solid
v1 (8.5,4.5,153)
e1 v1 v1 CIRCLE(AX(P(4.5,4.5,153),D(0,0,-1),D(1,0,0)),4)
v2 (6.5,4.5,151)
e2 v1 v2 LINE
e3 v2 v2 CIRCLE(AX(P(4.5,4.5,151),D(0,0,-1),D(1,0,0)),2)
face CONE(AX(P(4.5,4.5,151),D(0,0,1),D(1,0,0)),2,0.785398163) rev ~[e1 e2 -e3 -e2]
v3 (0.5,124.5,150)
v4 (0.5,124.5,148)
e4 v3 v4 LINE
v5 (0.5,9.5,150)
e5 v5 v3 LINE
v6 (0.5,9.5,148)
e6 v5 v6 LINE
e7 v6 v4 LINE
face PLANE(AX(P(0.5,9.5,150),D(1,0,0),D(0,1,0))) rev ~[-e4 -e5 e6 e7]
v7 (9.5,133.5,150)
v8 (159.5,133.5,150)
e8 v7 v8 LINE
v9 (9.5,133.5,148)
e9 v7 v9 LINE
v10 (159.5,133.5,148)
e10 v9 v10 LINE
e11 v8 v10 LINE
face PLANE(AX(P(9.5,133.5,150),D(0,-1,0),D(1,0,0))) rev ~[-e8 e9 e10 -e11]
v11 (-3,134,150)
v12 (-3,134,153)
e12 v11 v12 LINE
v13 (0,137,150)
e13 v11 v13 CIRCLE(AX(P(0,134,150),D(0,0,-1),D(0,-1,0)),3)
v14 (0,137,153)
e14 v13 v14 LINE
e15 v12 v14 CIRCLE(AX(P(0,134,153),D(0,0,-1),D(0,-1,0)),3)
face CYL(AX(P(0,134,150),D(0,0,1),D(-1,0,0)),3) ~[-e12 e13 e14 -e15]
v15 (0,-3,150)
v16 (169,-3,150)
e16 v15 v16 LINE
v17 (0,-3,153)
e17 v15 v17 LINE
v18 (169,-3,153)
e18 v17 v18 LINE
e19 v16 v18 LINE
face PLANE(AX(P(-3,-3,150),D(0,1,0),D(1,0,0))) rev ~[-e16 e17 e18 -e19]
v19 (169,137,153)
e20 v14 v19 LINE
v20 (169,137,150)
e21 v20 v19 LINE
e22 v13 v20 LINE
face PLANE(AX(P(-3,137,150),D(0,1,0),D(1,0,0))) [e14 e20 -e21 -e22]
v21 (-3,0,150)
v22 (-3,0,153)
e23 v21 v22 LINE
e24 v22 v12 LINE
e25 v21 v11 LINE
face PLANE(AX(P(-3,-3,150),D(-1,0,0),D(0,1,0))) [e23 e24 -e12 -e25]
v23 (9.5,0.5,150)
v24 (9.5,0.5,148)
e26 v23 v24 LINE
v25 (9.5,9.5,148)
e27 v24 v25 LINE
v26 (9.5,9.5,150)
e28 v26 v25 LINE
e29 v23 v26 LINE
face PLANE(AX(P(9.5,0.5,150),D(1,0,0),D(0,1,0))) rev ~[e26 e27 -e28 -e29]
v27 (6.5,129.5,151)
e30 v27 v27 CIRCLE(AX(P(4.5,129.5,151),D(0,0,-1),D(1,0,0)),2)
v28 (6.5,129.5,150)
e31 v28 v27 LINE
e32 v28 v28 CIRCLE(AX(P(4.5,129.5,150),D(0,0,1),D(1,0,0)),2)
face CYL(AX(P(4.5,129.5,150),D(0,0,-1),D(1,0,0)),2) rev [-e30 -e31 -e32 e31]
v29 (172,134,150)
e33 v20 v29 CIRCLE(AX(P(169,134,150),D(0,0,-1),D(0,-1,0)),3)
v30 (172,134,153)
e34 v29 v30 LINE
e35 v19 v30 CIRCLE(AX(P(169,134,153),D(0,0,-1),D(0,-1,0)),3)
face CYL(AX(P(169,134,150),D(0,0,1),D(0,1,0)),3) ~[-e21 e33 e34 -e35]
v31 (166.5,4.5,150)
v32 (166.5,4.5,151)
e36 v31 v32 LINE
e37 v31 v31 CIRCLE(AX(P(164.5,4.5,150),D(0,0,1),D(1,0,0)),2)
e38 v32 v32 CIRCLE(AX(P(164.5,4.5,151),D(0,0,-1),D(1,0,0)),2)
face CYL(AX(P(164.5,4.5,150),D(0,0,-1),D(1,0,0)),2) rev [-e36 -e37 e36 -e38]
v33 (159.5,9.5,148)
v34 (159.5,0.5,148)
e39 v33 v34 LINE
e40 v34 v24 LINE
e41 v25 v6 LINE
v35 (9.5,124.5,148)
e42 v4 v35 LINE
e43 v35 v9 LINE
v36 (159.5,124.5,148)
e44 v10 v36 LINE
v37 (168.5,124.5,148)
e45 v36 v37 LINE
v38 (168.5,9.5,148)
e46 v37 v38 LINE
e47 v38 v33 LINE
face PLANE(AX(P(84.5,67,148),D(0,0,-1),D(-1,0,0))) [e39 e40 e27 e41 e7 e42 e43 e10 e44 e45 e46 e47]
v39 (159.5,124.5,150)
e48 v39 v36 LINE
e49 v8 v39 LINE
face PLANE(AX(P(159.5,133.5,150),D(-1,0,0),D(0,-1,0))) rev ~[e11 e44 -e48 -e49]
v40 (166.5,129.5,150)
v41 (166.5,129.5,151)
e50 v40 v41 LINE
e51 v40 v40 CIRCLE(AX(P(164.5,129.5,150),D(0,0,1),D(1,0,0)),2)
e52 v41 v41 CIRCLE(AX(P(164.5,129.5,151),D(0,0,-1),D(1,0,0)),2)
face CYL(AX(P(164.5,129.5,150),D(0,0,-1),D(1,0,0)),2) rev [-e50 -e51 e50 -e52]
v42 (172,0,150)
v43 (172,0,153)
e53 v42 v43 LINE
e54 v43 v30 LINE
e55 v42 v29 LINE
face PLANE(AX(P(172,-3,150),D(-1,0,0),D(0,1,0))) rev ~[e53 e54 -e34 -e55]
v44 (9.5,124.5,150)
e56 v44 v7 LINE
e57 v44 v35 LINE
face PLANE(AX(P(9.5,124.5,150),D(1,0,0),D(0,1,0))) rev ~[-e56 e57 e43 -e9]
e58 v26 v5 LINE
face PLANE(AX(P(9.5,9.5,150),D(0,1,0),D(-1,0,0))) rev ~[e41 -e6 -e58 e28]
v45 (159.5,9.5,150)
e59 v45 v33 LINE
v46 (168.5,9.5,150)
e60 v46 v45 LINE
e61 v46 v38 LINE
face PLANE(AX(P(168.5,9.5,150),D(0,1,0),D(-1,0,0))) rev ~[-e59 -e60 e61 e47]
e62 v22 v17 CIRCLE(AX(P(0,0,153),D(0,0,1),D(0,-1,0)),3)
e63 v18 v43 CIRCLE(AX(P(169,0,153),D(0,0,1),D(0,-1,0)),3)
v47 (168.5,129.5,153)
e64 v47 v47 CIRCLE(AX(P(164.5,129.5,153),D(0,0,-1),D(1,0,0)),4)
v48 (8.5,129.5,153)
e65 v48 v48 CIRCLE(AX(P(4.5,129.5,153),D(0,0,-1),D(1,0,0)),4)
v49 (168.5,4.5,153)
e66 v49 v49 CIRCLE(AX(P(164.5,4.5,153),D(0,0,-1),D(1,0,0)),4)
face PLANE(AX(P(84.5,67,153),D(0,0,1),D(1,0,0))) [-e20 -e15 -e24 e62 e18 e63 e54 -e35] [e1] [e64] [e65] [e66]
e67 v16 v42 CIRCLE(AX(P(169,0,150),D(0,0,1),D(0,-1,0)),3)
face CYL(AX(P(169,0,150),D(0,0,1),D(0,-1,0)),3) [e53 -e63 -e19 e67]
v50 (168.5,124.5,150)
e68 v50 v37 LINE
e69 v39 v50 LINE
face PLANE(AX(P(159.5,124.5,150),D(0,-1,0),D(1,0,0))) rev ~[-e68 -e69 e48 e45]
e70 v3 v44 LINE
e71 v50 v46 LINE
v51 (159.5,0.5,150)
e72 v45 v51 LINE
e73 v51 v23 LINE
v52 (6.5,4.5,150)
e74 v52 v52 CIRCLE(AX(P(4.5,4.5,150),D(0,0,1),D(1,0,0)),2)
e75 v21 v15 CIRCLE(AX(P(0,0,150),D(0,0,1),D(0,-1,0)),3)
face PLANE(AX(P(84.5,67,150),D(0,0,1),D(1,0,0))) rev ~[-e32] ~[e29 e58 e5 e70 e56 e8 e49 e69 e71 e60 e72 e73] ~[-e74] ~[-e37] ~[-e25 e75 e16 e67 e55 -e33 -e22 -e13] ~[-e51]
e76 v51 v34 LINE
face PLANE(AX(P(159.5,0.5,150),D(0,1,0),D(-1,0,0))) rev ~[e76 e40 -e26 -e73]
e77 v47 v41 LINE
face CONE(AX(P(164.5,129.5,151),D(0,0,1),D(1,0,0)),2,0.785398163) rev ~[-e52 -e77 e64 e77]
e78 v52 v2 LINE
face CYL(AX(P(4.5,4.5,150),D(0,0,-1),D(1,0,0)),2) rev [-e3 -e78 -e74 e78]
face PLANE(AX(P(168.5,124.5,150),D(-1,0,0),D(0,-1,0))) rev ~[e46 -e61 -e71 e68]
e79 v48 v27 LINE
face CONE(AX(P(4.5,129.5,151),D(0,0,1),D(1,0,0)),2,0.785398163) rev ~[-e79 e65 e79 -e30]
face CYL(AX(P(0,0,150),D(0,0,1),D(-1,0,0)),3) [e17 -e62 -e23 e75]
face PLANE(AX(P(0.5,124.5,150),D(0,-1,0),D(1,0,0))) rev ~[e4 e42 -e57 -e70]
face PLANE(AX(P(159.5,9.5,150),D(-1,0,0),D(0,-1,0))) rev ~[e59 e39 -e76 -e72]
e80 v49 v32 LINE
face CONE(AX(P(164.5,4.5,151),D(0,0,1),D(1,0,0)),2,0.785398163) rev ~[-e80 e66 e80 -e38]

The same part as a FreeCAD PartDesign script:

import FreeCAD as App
import Part
import Sketcher
from FreeCAD import Vector


def edges_at(feature, points):
    """Names of the edges that pass closest to the given points."""
    edges = feature.Shape.Edges
    near = lambda p: min(range(len(edges)), key=lambda i: edges[i].distToShape(Part.Vertex(*p))[0])
    return sorted({f"Edge{near(p) + 1}" for p in points})

doc = App.newDocument("Part")
body = doc.addObject("PartDesign::Body", "Body")

sketch1 = body.newObject("Sketcher::SketchObject", "Sketch")
sketch1.AttachmentSupport = (doc.getObject("XY_Plane"), [""])
sketch1.MapMode = "FlatFace"
sketch1.addGeometry(Part.LineSegment(Vector(-3, 137, 0), Vector(-3, -3, 0)), False)
sketch1.addGeometry(Part.LineSegment(Vector(-3, -3, 0), Vector(172, -3, 0)), False)
sketch1.addGeometry(Part.LineSegment(Vector(172, -3, 0), Vector(172, 137, 0)), False)
sketch1.addGeometry(Part.LineSegment(Vector(172, 137, 0), Vector(-3, 137, 0)), False)
sketch1.addConstraint(Sketcher.Constraint("Coincident", 0, 2, 1, 1))
sketch1.addConstraint(Sketcher.Constraint("Coincident", 1, 2, 2, 1))
sketch1.addConstraint(Sketcher.Constraint("Coincident", 2, 2, 3, 1))
sketch1.addConstraint(Sketcher.Constraint("Coincident", 3, 2, 0, 1))
sketch1.addConstraint(Sketcher.Constraint("Vertical", 0))
sketch1.addConstraint(Sketcher.Constraint("Horizontal", 1))
sketch1.addConstraint(Sketcher.Constraint("Vertical", 2))
sketch1.addConstraint(Sketcher.Constraint("Horizontal", 3))
sketch1.addConstraint(Sketcher.Constraint("DistanceX", 1, 1, 1, 2, 175.0))
sketch1.addConstraint(Sketcher.Constraint("DistanceY", 0, 2, 0, 1, 140.0))
sketch1.addConstraint(Sketcher.Constraint("DistanceX", 0, 2, -1, 1, 3.0))
sketch1.addConstraint(Sketcher.Constraint("DistanceY", 0, 2, -1, 1, 3.0))
pad1 = body.newObject("PartDesign::Pad", "Pad")
pad1.Profile = sketch1
pad1.Length = 3

sketch2 = body.newObject("Sketcher::SketchObject", "Sketch001")
sketch2.AttachmentSupport = (doc.getObject("XY_Plane"), [""])
sketch2.MapMode = "FlatFace"
sketch2.addGeometry(Part.LineSegment(Vector(0.5, 124.5, 0), Vector(0.5, 9.5, 0)), False)
sketch2.addGeometry(Part.LineSegment(Vector(0.5, 9.5, 0), Vector(9.5, 9.5, 0)), False)
sketch2.addGeometry(Part.LineSegment(Vector(9.5, 9.5, 0), Vector(9.5, 0.5, 0)), False)
sketch2.addGeometry(Part.LineSegment(Vector(9.5, 0.5, 0), Vector(159.5, 0.5, 0)), False)
sketch2.addGeometry(Part.LineSegment(Vector(159.5, 0.5, 0), Vector(159.5, 9.5, 0)), False)
sketch2.addGeometry(Part.LineSegment(Vector(159.5, 9.5, 0), Vector(168.5, 9.5, 0)), False)
sketch2.addGeometry(Part.LineSegment(Vector(168.5, 9.5, 0), Vector(168.5, 124.5, 0)), False)
sketch2.addGeometry(Part.LineSegment(Vector(168.5, 124.5, 0), Vector(159.5, 124.5, 0)), False)
sketch2.addGeometry(Part.LineSegment(Vector(159.5, 124.5, 0), Vector(159.5, 133.5, 0)), False)
sketch2.addGeometry(Part.LineSegment(Vector(159.5, 133.5, 0), Vector(9.5, 133.5, 0)), False)
sketch2.addGeometry(Part.LineSegment(Vector(9.5, 133.5, 0), Vector(9.5, 124.5, 0)), False)
sketch2.addGeometry(Part.LineSegment(Vector(9.5, 124.5, 0), Vector(0.5, 124.5, 0)), False)
sketch2.addConstraint(Sketcher.Constraint("Coincident", 0, 2, 1, 1))
sketch2.addConstraint(Sketcher.Constraint("Coincident", 1, 2, 2, 1))
sketch2.addConstraint(Sketcher.Constraint("Coincident", 2, 2, 3, 1))
sketch2.addConstraint(Sketcher.Constraint("Coincident", 3, 2, 4, 1))
sketch2.addConstraint(Sketcher.Constraint("Coincident", 4, 2, 5, 1))
sketch2.addConstraint(Sketcher.Constraint("Coincident", 5, 2, 6, 1))
sketch2.addConstraint(Sketcher.Constraint("Coincident", 6, 2, 7, 1))
sketch2.addConstraint(Sketcher.Constraint("Coincident", 7, 2, 8, 1))
sketch2.addConstraint(Sketcher.Constraint("Coincident", 8, 2, 9, 1))
sketch2.addConstraint(Sketcher.Constraint("Coincident", 9, 2, 10, 1))
sketch2.addConstraint(Sketcher.Constraint("Coincident", 10, 2, 11, 1))
sketch2.addConstraint(Sketcher.Constraint("Coincident", 11, 2, 0, 1))
sketch2.addConstraint(Sketcher.Constraint("Vertical", 0))
sketch2.addConstraint(Sketcher.Constraint("Horizontal", 1))
sketch2.addConstraint(Sketcher.Constraint("Vertical", 2))
sketch2.addConstraint(Sketcher.Constraint("Horizontal", 3))
sketch2.addConstraint(Sketcher.Constraint("Vertical", 4))
sketch2.addConstraint(Sketcher.Constraint("Horizontal", 5))
sketch2.addConstraint(Sketcher.Constraint("Vertical", 6))
sketch2.addConstraint(Sketcher.Constraint("Horizontal", 7))
sketch2.addConstraint(Sketcher.Constraint("Vertical", 8))
sketch2.addConstraint(Sketcher.Constraint("Horizontal", 9))
sketch2.addConstraint(Sketcher.Constraint("Vertical", 10))
sketch2.addConstraint(Sketcher.Constraint("Horizontal", 11))
sketch2.addConstraint(Sketcher.Constraint("Horizontal", 1, 2, 4, 2))
sketch2.addConstraint(Sketcher.Constraint("Horizontal", 7, 2, 10, 2))
sketch2.addConstraint(Sketcher.Constraint("Vertical", 4, 2, 7, 2))
sketch2.addConstraint(Sketcher.Constraint("Vertical", 2, 2, 9, 2))
sketch2.addConstraint(Sketcher.Constraint("Equal", 1, 5))
sketch2.addConstraint(Sketcher.Constraint("Equal", 11, 2))
sketch2.addConstraint(Sketcher.Constraint("Equal", 4, 8))
sketch2.addConstraint(Sketcher.Constraint("DistanceX", 1, 1, 1, 2, 9.0))
sketch2.addConstraint(Sketcher.Constraint("DistanceX", 3, 1, 3, 2, 150.0))
sketch2.addConstraint(Sketcher.Constraint("DistanceY", 0, 2, 0, 1, 115.0))
sketch2.addConstraint(Sketcher.Constraint("DistanceX", -1, 1, 0, 2, 0.5))
sketch2.addConstraint(Sketcher.Constraint("DistanceY", -1, 1, 0, 2, 9.5))
pad2 = body.newObject("PartDesign::Pad", "Pad001")
pad2.Profile = sketch2
pad2.Length = 2
pad2.Reversed = True

sketch3 = body.newObject("Sketcher::SketchObject", "Sketch002")
sketch3.AttachmentSupport = (doc.getObject("XY_Plane"), [""])
sketch3.MapMode = "FlatFace"
sketch3.addGeometry(Part.Circle(Vector(4.5, 4.5, 0), Vector(0, 0, 1), 2), False)
sketch3.addGeometry(Part.Circle(Vector(164.5, 129.5, 0), Vector(0, 0, 1), 2), False)
sketch3.addGeometry(Part.Circle(Vector(164.5, 4.5, 0), Vector(0, 0, 1), 2), False)
sketch3.addGeometry(Part.Circle(Vector(4.5, 129.5, 0), Vector(0, 0, 1), 2), False)
sketch3.addConstraint(Sketcher.Constraint("Equal", 0, 1))
sketch3.addConstraint(Sketcher.Constraint("Equal", 1, 2))
sketch3.addConstraint(Sketcher.Constraint("Equal", 2, 3))
sketch3.addConstraint(Sketcher.Constraint("Horizontal", 0, 3, 2, 3))
sketch3.addConstraint(Sketcher.Constraint("Horizontal", 1, 3, 3, 3))
sketch3.addConstraint(Sketcher.Constraint("Vertical", 1, 3, 2, 3))
sketch3.addConstraint(Sketcher.Constraint("Vertical", 0, 3, 3, 3))
sketch3.addConstraint(Sketcher.Constraint("Diameter", 0, 4.0))
sketch3.addConstraint(Sketcher.Constraint("DistanceX", 0, 3, 1, 3, 160.0))
sketch3.addConstraint(Sketcher.Constraint("DistanceY", 0, 3, 1, 3, 125.0))
sketch3.addConstraint(Sketcher.Constraint("DistanceX", -1, 1, 0, 3, 4.5))
sketch3.addConstraint(Sketcher.Constraint("DistanceY", -1, 1, 0, 3, 4.5))
pocket1 = body.newObject("PartDesign::Pocket", "Pocket")
pocket1.Profile = sketch3
pocket1.Type = "ThroughAll"
pocket1.Reversed = True
doc.recompute()

chamfer = body.newObject("PartDesign::Chamfer", "Chamfer")
chamfer.Base = (pocket1, edges_at(pocket1, [
    (2.5, 129.5, 3),
    (162.5, 129.5, 3),
    (162.5, 4.5, 3),
    (2.5, 4.5, 3),
]))
chamfer.Size = 2
doc.recompute()

fillet = body.newObject("PartDesign::Fillet", "Fillet")
fillet.Base = (chamfer, edges_at(chamfer, [
    (172, -3, 1.5),
    (172, 137, 1.5),
    (-3, -3, 1.5),
    (-3, 137, 1.5),
]))
fillet.Radius = 3
body2 = doc.addObject("PartDesign::Body", "Body001")
doc.recompute()

body.Placement = App.Placement(Vector(0, 0, 150), App.Rotation(Vector(0, 0, 1), 0))
boolean = body2.newObject("PartDesign::Boolean", "Boolean")
boolean.Type = "Fuse"
boolean.addObjects([body])

doc.recompute()
